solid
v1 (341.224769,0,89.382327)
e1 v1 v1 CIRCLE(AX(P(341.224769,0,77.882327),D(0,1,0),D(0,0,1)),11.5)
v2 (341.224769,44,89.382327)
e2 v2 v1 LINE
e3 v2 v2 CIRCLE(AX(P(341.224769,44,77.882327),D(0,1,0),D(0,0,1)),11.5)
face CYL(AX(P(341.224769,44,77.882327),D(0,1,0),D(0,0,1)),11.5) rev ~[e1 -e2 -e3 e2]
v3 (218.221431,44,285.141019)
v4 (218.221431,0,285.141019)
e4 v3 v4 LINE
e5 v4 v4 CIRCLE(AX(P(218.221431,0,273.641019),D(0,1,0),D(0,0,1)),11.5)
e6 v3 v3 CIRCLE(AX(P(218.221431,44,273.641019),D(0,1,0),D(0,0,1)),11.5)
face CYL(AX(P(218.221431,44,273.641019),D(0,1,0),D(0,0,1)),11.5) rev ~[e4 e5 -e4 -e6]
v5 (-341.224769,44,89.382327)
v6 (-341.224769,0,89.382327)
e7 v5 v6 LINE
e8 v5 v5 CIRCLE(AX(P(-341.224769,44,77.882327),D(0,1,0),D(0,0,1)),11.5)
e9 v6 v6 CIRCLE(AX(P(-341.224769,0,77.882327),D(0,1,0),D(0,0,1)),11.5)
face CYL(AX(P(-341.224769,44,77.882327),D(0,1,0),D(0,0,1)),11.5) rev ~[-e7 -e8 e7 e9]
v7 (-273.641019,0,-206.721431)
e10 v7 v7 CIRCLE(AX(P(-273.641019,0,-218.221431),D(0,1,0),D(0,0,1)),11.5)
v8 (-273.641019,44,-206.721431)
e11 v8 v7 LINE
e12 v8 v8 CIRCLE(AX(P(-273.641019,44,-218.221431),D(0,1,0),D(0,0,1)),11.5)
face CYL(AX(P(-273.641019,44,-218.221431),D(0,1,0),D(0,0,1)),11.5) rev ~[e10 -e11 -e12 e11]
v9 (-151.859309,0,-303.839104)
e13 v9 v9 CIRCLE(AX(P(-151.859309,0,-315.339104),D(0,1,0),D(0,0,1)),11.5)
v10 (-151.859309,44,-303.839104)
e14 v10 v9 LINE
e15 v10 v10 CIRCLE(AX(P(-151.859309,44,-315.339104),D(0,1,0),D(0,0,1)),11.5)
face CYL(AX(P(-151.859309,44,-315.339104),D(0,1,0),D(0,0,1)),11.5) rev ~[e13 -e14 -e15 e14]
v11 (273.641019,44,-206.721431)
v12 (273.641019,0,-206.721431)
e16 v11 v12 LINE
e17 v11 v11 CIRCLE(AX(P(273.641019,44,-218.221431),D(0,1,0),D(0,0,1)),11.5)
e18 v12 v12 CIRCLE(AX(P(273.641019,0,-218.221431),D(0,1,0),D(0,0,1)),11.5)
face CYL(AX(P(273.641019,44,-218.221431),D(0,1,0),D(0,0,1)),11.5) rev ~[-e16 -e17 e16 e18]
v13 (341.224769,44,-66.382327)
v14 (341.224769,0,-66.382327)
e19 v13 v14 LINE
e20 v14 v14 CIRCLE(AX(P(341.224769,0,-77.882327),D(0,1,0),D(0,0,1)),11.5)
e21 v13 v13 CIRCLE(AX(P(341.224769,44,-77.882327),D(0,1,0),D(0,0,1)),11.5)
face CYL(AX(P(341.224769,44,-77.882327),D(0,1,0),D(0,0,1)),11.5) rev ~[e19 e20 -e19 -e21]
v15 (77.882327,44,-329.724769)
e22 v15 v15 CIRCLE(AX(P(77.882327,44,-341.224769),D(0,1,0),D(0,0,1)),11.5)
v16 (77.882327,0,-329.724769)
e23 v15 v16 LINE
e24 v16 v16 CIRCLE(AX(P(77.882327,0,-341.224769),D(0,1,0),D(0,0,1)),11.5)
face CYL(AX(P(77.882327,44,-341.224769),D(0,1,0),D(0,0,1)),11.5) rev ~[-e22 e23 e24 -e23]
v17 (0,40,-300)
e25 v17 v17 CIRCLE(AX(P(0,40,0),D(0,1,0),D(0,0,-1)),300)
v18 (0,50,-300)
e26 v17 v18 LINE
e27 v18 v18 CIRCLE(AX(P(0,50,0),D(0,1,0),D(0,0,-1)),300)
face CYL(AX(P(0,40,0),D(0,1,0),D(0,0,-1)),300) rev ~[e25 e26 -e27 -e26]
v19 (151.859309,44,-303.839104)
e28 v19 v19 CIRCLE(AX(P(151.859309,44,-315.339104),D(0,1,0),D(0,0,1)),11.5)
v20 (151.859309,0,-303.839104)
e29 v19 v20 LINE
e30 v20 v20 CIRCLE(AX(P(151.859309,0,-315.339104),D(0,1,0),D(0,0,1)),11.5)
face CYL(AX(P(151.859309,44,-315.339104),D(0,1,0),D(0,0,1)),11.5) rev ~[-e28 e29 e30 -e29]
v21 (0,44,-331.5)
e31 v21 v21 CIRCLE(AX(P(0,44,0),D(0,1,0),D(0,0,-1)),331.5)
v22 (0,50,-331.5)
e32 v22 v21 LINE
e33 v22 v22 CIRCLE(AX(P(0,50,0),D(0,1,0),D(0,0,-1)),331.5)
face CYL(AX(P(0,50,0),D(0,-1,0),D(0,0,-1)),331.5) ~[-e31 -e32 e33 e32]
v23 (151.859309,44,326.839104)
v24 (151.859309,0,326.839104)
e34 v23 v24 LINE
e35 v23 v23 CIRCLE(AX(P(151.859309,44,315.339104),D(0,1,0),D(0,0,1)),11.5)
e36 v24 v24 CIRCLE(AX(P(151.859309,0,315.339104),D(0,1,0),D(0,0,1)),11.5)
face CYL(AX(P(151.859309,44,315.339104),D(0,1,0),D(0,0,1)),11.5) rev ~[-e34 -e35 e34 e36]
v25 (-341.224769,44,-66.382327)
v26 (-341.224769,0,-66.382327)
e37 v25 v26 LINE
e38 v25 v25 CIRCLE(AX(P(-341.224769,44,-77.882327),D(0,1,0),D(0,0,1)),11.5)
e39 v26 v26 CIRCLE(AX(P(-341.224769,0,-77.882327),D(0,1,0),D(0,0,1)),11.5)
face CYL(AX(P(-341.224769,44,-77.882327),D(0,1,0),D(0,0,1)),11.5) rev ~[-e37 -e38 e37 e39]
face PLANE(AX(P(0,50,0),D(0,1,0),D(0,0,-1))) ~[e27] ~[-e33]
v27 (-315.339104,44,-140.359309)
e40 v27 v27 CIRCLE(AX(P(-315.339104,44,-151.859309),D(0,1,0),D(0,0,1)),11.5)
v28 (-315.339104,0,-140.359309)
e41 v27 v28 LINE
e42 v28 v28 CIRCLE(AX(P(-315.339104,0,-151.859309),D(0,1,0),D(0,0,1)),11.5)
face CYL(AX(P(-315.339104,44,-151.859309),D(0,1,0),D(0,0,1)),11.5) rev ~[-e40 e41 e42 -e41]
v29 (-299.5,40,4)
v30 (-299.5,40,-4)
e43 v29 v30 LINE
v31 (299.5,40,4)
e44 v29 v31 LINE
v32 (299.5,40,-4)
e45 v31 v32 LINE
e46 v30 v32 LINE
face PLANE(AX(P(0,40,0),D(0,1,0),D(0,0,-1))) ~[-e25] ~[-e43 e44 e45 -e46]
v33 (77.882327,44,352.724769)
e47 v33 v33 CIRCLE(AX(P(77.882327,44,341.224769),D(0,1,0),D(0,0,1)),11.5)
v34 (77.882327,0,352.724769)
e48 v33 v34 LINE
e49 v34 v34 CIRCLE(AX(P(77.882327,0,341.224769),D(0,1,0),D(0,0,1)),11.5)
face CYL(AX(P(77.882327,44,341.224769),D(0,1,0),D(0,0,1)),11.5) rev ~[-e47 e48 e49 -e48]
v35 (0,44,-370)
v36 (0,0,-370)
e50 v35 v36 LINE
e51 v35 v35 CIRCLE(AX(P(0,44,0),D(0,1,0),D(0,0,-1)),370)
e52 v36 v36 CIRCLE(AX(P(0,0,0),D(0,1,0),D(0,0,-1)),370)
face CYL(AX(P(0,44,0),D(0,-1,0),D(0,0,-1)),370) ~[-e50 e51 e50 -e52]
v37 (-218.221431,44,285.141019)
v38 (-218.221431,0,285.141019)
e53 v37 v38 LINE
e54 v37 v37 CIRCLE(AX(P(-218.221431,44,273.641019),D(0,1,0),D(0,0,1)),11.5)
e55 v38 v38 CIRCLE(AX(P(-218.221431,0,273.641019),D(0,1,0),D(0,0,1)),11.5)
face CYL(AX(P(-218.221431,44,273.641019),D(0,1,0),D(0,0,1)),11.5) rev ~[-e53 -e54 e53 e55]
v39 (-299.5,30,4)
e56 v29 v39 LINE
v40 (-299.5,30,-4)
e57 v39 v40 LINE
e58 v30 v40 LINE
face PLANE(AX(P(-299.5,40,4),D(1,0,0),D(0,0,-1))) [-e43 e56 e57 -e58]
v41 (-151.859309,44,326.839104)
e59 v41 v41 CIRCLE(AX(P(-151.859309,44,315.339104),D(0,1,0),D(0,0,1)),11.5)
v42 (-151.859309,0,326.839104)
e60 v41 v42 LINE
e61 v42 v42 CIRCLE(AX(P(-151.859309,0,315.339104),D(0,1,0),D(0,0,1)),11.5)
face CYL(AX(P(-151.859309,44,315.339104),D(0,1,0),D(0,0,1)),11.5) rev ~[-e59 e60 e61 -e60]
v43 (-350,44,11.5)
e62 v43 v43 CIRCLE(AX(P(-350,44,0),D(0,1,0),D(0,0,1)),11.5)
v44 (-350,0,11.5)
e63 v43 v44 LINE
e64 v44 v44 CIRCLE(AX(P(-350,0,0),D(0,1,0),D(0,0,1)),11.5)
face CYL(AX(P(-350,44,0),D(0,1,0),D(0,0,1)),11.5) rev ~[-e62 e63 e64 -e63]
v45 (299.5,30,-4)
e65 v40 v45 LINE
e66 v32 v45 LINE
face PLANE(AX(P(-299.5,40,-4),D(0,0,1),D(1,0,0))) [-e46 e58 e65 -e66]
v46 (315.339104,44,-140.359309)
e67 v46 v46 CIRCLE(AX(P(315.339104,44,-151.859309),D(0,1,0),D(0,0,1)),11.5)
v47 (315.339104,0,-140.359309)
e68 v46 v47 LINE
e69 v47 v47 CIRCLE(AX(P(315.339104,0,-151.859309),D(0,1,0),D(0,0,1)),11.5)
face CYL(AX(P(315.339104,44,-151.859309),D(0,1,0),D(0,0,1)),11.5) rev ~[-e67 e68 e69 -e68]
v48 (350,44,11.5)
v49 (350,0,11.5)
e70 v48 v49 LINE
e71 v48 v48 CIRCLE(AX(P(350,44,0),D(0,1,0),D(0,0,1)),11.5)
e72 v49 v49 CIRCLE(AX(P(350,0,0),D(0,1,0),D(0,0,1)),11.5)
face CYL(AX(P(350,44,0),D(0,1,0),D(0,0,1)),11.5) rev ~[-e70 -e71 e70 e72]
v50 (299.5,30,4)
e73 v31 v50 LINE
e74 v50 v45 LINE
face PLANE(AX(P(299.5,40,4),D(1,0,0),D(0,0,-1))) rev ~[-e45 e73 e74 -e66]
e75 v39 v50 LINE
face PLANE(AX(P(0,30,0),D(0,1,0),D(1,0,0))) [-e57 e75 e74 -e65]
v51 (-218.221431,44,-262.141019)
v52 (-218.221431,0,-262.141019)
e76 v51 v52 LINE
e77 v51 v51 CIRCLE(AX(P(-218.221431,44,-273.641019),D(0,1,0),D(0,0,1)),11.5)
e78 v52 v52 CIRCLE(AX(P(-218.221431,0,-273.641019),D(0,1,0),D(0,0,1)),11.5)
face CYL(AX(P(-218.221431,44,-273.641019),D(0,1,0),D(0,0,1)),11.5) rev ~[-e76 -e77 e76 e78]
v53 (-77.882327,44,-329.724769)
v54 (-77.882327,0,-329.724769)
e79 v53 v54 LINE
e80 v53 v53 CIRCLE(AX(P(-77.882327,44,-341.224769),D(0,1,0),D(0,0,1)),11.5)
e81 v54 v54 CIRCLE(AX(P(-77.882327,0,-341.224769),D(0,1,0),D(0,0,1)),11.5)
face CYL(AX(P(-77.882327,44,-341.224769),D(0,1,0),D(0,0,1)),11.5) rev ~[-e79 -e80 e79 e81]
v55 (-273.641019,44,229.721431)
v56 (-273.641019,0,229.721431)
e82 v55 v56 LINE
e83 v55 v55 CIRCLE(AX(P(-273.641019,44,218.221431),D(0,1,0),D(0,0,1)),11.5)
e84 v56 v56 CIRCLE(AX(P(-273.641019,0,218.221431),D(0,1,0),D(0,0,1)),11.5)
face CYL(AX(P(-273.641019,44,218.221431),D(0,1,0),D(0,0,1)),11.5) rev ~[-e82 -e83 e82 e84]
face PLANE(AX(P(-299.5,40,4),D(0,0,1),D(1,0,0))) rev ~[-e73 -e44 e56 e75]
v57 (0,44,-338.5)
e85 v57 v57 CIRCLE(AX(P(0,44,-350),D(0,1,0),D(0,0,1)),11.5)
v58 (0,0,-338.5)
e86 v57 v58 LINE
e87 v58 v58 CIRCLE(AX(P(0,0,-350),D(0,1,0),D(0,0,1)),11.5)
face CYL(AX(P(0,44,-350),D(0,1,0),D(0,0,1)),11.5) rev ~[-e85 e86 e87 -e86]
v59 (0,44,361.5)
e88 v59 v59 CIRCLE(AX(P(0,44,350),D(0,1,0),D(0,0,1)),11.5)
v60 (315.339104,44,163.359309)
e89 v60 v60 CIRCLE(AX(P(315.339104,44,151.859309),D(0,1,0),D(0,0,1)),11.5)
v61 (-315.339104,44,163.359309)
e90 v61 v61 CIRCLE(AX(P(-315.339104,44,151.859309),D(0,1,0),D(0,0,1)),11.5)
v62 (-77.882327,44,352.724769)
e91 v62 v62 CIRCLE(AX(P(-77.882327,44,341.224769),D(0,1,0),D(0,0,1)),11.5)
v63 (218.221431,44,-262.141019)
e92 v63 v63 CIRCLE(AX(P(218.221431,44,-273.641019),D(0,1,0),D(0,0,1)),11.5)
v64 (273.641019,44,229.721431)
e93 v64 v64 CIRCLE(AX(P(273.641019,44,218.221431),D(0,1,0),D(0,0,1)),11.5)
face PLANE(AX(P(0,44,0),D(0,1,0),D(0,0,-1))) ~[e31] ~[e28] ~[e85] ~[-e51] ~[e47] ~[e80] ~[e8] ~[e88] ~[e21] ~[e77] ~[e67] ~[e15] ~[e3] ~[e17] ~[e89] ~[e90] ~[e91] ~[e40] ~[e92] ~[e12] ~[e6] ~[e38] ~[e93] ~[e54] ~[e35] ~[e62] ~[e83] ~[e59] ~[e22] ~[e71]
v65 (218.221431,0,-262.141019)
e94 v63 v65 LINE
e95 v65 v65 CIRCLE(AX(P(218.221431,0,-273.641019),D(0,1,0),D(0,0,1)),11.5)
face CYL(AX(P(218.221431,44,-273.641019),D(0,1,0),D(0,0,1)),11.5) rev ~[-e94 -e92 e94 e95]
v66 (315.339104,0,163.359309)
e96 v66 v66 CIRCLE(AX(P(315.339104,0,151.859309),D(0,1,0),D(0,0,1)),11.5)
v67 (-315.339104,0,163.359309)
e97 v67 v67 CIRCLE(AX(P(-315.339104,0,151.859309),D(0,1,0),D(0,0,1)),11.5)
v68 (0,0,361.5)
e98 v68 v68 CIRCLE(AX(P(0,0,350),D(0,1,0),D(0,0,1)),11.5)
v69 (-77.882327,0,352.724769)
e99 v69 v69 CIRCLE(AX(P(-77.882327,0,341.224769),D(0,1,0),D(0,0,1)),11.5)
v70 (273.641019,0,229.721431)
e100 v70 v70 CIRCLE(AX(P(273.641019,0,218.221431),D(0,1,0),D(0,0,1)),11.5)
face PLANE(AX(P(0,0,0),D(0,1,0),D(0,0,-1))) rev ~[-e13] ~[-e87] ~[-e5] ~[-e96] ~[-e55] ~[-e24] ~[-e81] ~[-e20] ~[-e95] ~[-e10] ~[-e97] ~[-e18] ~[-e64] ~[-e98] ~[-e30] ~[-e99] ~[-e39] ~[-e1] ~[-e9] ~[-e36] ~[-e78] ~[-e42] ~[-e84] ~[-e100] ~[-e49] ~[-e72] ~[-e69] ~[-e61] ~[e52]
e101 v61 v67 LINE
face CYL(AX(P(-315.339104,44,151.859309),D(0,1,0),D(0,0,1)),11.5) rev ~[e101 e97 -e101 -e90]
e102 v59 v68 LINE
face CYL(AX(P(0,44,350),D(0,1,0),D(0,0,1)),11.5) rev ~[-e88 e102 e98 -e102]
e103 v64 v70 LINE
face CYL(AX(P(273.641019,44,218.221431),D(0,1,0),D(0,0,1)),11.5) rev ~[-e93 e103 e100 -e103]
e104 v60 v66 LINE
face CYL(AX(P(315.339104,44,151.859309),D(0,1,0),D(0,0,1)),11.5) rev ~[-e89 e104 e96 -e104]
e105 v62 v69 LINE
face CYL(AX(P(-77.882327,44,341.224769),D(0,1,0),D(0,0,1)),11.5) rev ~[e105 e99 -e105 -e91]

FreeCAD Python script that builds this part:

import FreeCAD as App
import Part
import Sketcher

V = App.Vector

doc = App.newDocument("Part")
body = doc.addObject("PartDesign::Body", "Body")

sketch1 = body.newObject("Sketcher::SketchObject", "Sketch")
sketch1.AttachmentSupport = (doc.getObject("XY_Plane"), [""])
sketch1.MapMode = "FlatFace"
sketch1.addGeometry(Part.LineSegment(V(-300, 50, 0), V(-332, 50, 0)), False)
sketch1.addGeometry(Part.LineSegment(V(-332, 50, 0), V(-332, 44, 0)), False)
sketch1.addGeometry(Part.LineSegment(V(-332, 44, 0), V(-370, 44, 0)), False)
sketch1.addGeometry(Part.LineSegment(V(-370, 44, 0), V(-370, 0, 0)), False)
sketch1.addGeometry(Part.LineSegment(V(-370, 0, 0), V(0, 0, 0)), False)
sketch1.addGeometry(Part.LineSegment(V(0, 0, 0), V(0, 40, 0)), False)
sketch1.addGeometry(Part.LineSegment(V(0, 40, 0), V(-300, 40, 0)), False)
sketch1.addGeometry(Part.LineSegment(V(-300, 40, 0), V(-300, 50, 0)), False)
sketch1.addConstraint(Sketcher.Constraint("Coincident", 0, 2, 1, 1))
sketch1.addConstraint(Sketcher.Constraint("Coincident", 1, 2, 2, 1))
sketch1.addConstraint(Sketcher.Constraint("Coincident", 2, 2, 3, 1))
sketch1.addConstraint(Sketcher.Constraint("Coincident", 3, 2, 4, 1))
sketch1.addConstraint(Sketcher.Constraint("Coincident", 4, 2, 5, 1))
sketch1.addConstraint(Sketcher.Constraint("Coincident", 5, 2, 6, 1))
sketch1.addConstraint(Sketcher.Constraint("Coincident", 6, 2, 7, 1))
sketch1.addConstraint(Sketcher.Constraint("Coincident", 7, 2, 0, 1))
sketch1.addConstraint(Sketcher.Constraint("Horizontal", 0))
sketch1.addConstraint(Sketcher.Constraint("Vertical", 1))
sketch1.addConstraint(Sketcher.Constraint("Horizontal", 2))
sketch1.addConstraint(Sketcher.Constraint("Vertical", 3))
sketch1.addConstraint(Sketcher.Constraint("Horizontal", 4))
sketch1.addConstraint(Sketcher.Constraint("Vertical", 5))
sketch1.addConstraint(Sketcher.Constraint("Horizontal", 6))
sketch1.addConstraint(Sketcher.Constraint("Vertical", 7))
sketch1.addConstraint(Sketcher.Constraint("Coincident", 4, 2, -1, 1))
sketch1.addConstraint(Sketcher.Constraint("DistanceX", 4, 1, 4, 2, 370.0))
sketch1.addConstraint(Sketcher.Constraint("DistanceX", 6, 2, 6, 1, 300.0))
sketch1.addConstraint(Sketcher.Constraint("DistanceY", 1, 2, 1, 1, 6.0))
sketch1.addConstraint(Sketcher.Constraint("DistanceY", 3, 2, 3, 1, 44.0))
sketch1.addConstraint(Sketcher.Constraint("DistanceY", 5, 1, 5, 2, 40.0))
sketch1.addConstraint(Sketcher.Constraint("DistanceX", 0, 2, 0, 1, 31.5))
revolution = body.newObject("PartDesign::Revolution", "Revolution")
revolution.Profile = sketch1
revolution.ReferenceAxis = (sketch1, ["V_Axis"])
revolution.Angle = 360

sketch2 = body.newObject("Sketcher::SketchObject", "Sketch001")
sketch2.AttachmentSupport = (doc.getObject("XZ_Plane"), [""])
sketch2.MapMode = "FlatFace"
sketch2.AttachmentOffset = App.Placement(V(0, 0, -44), App.Rotation())
sketch2.addGeometry(Part.Circle(V(0, -350, 0), V(0, 0, 1), 12), False)
sketch2.addGeometry(Part.Circle(V(78, -341, 0), V(0, 0, 1), 12), False)
sketch2.addGeometry(Part.Circle(V(152, -315, 0), V(0, 0, 1), 12), False)
sketch2.addGeometry(Part.Circle(V(218, -274, 0), V(0, 0, 1), 12), False)
sketch2.addGeometry(Part.Circle(V(274, -218, 0), V(0, 0, 1), 12), False)
sketch2.addGeometry(Part.Circle(V(315, -152, 0), V(0, 0, 1), 12), False)
sketch2.addGeometry(Part.Circle(V(341, -78, 0), V(0, 0, 1), 12), False)
sketch2.addGeometry(Part.Circle(V(350, 0, 0), V(0, 0, 1), 12), False)
sketch2.addGeometry(Part.Circle(V(341, 78, 0), V(0, 0, 1), 12), False)
sketch2.addGeometry(Part.Circle(V(315, 152, 0), V(0, 0, 1), 12), False)
sketch2.addGeometry(Part.Circle(V(274, 218, 0), V(0, 0, 1), 12), False)
sketch2.addGeometry(Part.Circle(V(218, 274, 0), V(0, 0, 1), 12), False)
sketch2.addGeometry(Part.Circle(V(152, 315, 0), V(0, 0, 1), 12), False)
sketch2.addGeometry(Part.Circle(V(78, 341, 0), V(0, 0, 1), 12), False)
sketch2.addGeometry(Part.Circle(V(0, 350, 0), V(0, 0, 1), 12), False)
sketch2.addGeometry(Part.Circle(V(-78, 341, 0), V(0, 0, 1), 12), False)
sketch2.addGeometry(Part.Circle(V(-152, 315, 0), V(0, 0, 1), 12), False)
sketch2.addGeometry(Part.Circle(V(-218, 274, 0), V(0, 0, 1), 12), False)
sketch2.addGeometry(Part.Circle(V(-274, 218, 0), V(0, 0, 1), 12), False)
sketch2.addGeometry(Part.Circle(V(-315, 152, 0), V(0, 0, 1), 12), False)
sketch2.addGeometry(Part.Circle(V(-341, 78, 0), V(0, 0, 1), 12), False)
sketch2.addGeometry(Part.Circle(V(-350, 0, 0), V(0, 0, 1), 12), False)
sketch2.addGeometry(Part.Circle(V(-341, -78, 0), V(0, 0, 1), 12), False)
sketch2.addGeometry(Part.Circle(V(-315, -152, 0), V(0, 0, 1), 12), False)
sketch2.addGeometry(Part.Circle(V(-274, -218, 0), V(0, 0, 1), 12), False)
sketch2.addGeometry(Part.Circle(V(-218, -274, 0), V(0, 0, 1), 12), False)
sketch2.addGeometry(Part.Circle(V(-152, -315, 0), V(0, 0, 1), 12), False)
sketch2.addGeometry(Part.Circle(V(-78, -341, 0), V(0, 0, 1), 12), False)
sketch2.addConstraint(Sketcher.Constraint("Equal", 0, 1))
sketch2.addConstraint(Sketcher.Constraint("Equal", 1, 2))
sketch2.addConstraint(Sketcher.Constraint("Equal", 2, 3))
sketch2.addConstraint(Sketcher.Constraint("Equal", 3, 4))
sketch2.addConstraint(Sketcher.Constraint("Equal", 4, 5))
sketch2.addConstraint(Sketcher.Constraint("Equal", 5, 6))
sketch2.addConstraint(Sketcher.Constraint("Equal", 6, 7))
sketch2.addConstraint(Sketcher.Constraint("Equal", 7, 8))
sketch2.addConstraint(Sketcher.Constraint("Equal", 8, 9))
sketch2.addConstraint(Sketcher.Constraint("Equal", 9, 10))
sketch2.addConstraint(Sketcher.Constraint("Equal", 10, 11))
sketch2.addConstraint(Sketcher.Constraint("Equal", 11, 12))
sketch2.addConstraint(Sketcher.Constraint("Equal", 12, 13))
sketch2.addConstraint(Sketcher.Constraint("Equal", 13, 14))
sketch2.addConstraint(Sketcher.Constraint("Equal", 14, 15))
sketch2.addConstraint(Sketcher.Constraint("Equal", 15, 16))
sketch2.addConstraint(Sketcher.Constraint("Equal", 16, 17))
sketch2.addConstraint(Sketcher.Constraint("Equal", 17, 18))
sketch2.addConstraint(Sketcher.Constraint("Equal", 18, 19))
sketch2.addConstraint(Sketcher.Constraint("Equal", 19, 20))
sketch2.addConstraint(Sketcher.Constraint("Equal", 20, 21))
sketch2.addConstraint(Sketcher.Constraint("Equal", 21, 22))
sketch2.addConstraint(Sketcher.Constraint("Equal", 22, 23))
sketch2.addConstraint(Sketcher.Constraint("Equal", 23, 24))
sketch2.addConstraint(Sketcher.Constraint("Equal", 24, 25))
sketch2.addConstraint(Sketcher.Constraint("Equal", 25, 26))
sketch2.addConstraint(Sketcher.Constraint("Equal", 26, 27))
sketch2.addConstraint(Sketcher.Constraint("Symmetric", 0, 3, 14, 3, -1, 1))
sketch2.addConstraint(Sketcher.Constraint("Symmetric", 1, 3, 15, 3, -1, 1))
sketch2.addConstraint(Sketcher.Constraint("Symmetric", 2, 3, 16, 3, -1, 1))
sketch2.addConstraint(Sketcher.Constraint("Symmetric", 3, 3, 17, 3, -1, 1))
sketch2.addConstraint(Sketcher.Constraint("Symmetric", 4, 3, 18, 3, -1, 1))
sketch2.addConstraint(Sketcher.Constraint("Symmetric", 5, 3, 19, 3, -1, 1))
sketch2.addConstraint(Sketcher.Constraint("Symmetric", 6, 3, 20, 3, -1, 1))
sketch2.addConstraint(Sketcher.Constraint("Symmetric", 7, 3, 21, 3, -1, 1))
sketch2.addConstraint(Sketcher.Constraint("Symmetric", 8, 3, 22, 3, -1, 1))
sketch2.addConstraint(Sketcher.Constraint("Symmetric", 9, 3, 23, 3, -1, 1))
sketch2.addConstraint(Sketcher.Constraint("Symmetric", 10, 3, 24, 3, -1, 1))
sketch2.addConstraint(Sketcher.Constraint("Symmetric", 11, 3, 25, 3, -1, 1))
sketch2.addConstraint(Sketcher.Constraint("Symmetric", 12, 3, 26, 3, -1, 1))
sketch2.addConstraint(Sketcher.Constraint("Symmetric", 13, 3, 27, 3, -1, 1))
sketch2.addConstraint(Sketcher.Constraint("Symmetric", 13, 3, 15, 3, -2))
sketch2.addConstraint(Sketcher.Constraint("Symmetric", 12, 3, 16, 3, -2))
sketch2.addConstraint(Sketcher.Constraint("Symmetric", 11, 3, 17, 3, -2))
sketch2.addConstraint(Sketcher.Constraint("Symmetric", 10, 3, 18, 3, -2))
sketch2.addConstraint(Sketcher.Constraint("Symmetric", 9, 3, 19, 3, -2))
sketch2.addConstraint(Sketcher.Constraint("Symmetric", 8, 3, 20, 3, -2))
sketch2.addConstraint(Sketcher.Constraint("PointOnObject", 0, 3, -2))
sketch2.addConstraint(Sketcher.Constraint("PointOnObject", 7, 3, -1))
sketch2.addConstraint(Sketcher.Constraint("Diameter", 0, 23.0))
sketch2.addConstraint(Sketcher.Constraint("DistanceY", 0, 3, -1, 1, 350.0))
sketch2.addConstraint(Sketcher.Constraint("DistanceX", -1, 1, 7, 3, 350.0))
sketch2.addConstraint(Sketcher.Constraint("DistanceY", 1, 3, -1, 1, 341.224769))
sketch2.addConstraint(Sketcher.Constraint("DistanceX", -1, 1, 2, 3, 151.859309))
sketch2.addConstraint(Sketcher.Constraint("DistanceX", -1, 1, 3, 3, 218.221431))
sketch2.addConstraint(Sketcher.Constraint("DistanceY", 3, 3, -1, 1, 273.641019))
sketch2.addConstraint(Sketcher.Constraint("DistanceX", -1, 1, 4, 3, 273.641019))
sketch2.addConstraint(Sketcher.Constraint("DistanceY", 4, 3, -1, 1, 218.221431))
sketch2.addConstraint(Sketcher.Constraint("DistanceY", 5, 3, -1, 1, 151.859309))
sketch2.addConstraint(Sketcher.Constraint("DistanceX", -1, 1, 6, 3, 341.224769))
sketch2.addConstraint(Sketcher.Constraint("DistanceX", 1, 3, 2, 3, 73.976982))
sketch2.addConstraint(Sketcher.Constraint("DistanceY", 5, 3, 6, 3, 73.976982))
sketch2.addConstraint(Sketcher.Constraint("DistanceY", 2, 3, -1, 1, 315.339104))
sketch2.addConstraint(Sketcher.Constraint("DistanceX", -1, 1, 5, 3, 315.339104))
pocket1 = body.newObject("PartDesign::Pocket", "Pocket")
pocket1.Profile = sketch2
pocket1.Type = "ThroughAll"
pocket1.Reversed = True

sketch3 = body.newObject("Sketcher::SketchObject", "Sketch002")
sketch3.AttachmentSupport = (doc.getObject("XZ_Plane"), [""])
sketch3.MapMode = "FlatFace"
sketch3.AttachmentOffset = App.Placement(V(0, 0, -40), App.Rotation())
sketch3.addGeometry(Part.LineSegment(V(-300, -4, 0), V(-300, 4, 0)), False)
sketch3.addGeometry(Part.LineSegment(V(-300, 4, 0), V(300, 4, 0)), False)
sketch3.addGeometry(Part.LineSegment(V(300, 4, 0), V(300, -4, 0)), False)
sketch3.addGeometry(Part.LineSegment(V(300, -4, 0), V(-300, -4, 0)), False)
sketch3.addConstraint(Sketcher.Constraint("Coincident", 0, 2, 1, 1))
sketch3.addConstraint(Sketcher.Constraint("Coincident", 1, 2, 2, 1))
sketch3.addConstraint(Sketcher.Constraint("Coincident", 2, 2, 3, 1))
sketch3.addConstraint(Sketcher.Constraint("Coincident", 3, 2, 0, 1))
sketch3.addConstraint(Sketcher.Constraint("Vertical", 0))
sketch3.addConstraint(Sketcher.Constraint("Horizontal", 1))
sketch3.addConstraint(Sketcher.Constraint("Vertical", 2))
sketch3.addConstraint(Sketcher.Constraint("Horizontal", 3))
sketch3.addConstraint(Sketcher.Constraint("Symmetric", 0, 2, 2, 2, -1, 1))
sketch3.addConstraint(Sketcher.Constraint("DistanceX", 1, 1, 1, 2, 599.0))
sketch3.addConstraint(Sketcher.Constraint("DistanceY", 0, 1, 0, 2, 8.0))
pocket2 = body.newObject("PartDesign::Pocket", "Pocket001")
pocket2.Profile = sketch3
pocket2.Length = 10
pocket2.Reversed = True

doc.recompute()
